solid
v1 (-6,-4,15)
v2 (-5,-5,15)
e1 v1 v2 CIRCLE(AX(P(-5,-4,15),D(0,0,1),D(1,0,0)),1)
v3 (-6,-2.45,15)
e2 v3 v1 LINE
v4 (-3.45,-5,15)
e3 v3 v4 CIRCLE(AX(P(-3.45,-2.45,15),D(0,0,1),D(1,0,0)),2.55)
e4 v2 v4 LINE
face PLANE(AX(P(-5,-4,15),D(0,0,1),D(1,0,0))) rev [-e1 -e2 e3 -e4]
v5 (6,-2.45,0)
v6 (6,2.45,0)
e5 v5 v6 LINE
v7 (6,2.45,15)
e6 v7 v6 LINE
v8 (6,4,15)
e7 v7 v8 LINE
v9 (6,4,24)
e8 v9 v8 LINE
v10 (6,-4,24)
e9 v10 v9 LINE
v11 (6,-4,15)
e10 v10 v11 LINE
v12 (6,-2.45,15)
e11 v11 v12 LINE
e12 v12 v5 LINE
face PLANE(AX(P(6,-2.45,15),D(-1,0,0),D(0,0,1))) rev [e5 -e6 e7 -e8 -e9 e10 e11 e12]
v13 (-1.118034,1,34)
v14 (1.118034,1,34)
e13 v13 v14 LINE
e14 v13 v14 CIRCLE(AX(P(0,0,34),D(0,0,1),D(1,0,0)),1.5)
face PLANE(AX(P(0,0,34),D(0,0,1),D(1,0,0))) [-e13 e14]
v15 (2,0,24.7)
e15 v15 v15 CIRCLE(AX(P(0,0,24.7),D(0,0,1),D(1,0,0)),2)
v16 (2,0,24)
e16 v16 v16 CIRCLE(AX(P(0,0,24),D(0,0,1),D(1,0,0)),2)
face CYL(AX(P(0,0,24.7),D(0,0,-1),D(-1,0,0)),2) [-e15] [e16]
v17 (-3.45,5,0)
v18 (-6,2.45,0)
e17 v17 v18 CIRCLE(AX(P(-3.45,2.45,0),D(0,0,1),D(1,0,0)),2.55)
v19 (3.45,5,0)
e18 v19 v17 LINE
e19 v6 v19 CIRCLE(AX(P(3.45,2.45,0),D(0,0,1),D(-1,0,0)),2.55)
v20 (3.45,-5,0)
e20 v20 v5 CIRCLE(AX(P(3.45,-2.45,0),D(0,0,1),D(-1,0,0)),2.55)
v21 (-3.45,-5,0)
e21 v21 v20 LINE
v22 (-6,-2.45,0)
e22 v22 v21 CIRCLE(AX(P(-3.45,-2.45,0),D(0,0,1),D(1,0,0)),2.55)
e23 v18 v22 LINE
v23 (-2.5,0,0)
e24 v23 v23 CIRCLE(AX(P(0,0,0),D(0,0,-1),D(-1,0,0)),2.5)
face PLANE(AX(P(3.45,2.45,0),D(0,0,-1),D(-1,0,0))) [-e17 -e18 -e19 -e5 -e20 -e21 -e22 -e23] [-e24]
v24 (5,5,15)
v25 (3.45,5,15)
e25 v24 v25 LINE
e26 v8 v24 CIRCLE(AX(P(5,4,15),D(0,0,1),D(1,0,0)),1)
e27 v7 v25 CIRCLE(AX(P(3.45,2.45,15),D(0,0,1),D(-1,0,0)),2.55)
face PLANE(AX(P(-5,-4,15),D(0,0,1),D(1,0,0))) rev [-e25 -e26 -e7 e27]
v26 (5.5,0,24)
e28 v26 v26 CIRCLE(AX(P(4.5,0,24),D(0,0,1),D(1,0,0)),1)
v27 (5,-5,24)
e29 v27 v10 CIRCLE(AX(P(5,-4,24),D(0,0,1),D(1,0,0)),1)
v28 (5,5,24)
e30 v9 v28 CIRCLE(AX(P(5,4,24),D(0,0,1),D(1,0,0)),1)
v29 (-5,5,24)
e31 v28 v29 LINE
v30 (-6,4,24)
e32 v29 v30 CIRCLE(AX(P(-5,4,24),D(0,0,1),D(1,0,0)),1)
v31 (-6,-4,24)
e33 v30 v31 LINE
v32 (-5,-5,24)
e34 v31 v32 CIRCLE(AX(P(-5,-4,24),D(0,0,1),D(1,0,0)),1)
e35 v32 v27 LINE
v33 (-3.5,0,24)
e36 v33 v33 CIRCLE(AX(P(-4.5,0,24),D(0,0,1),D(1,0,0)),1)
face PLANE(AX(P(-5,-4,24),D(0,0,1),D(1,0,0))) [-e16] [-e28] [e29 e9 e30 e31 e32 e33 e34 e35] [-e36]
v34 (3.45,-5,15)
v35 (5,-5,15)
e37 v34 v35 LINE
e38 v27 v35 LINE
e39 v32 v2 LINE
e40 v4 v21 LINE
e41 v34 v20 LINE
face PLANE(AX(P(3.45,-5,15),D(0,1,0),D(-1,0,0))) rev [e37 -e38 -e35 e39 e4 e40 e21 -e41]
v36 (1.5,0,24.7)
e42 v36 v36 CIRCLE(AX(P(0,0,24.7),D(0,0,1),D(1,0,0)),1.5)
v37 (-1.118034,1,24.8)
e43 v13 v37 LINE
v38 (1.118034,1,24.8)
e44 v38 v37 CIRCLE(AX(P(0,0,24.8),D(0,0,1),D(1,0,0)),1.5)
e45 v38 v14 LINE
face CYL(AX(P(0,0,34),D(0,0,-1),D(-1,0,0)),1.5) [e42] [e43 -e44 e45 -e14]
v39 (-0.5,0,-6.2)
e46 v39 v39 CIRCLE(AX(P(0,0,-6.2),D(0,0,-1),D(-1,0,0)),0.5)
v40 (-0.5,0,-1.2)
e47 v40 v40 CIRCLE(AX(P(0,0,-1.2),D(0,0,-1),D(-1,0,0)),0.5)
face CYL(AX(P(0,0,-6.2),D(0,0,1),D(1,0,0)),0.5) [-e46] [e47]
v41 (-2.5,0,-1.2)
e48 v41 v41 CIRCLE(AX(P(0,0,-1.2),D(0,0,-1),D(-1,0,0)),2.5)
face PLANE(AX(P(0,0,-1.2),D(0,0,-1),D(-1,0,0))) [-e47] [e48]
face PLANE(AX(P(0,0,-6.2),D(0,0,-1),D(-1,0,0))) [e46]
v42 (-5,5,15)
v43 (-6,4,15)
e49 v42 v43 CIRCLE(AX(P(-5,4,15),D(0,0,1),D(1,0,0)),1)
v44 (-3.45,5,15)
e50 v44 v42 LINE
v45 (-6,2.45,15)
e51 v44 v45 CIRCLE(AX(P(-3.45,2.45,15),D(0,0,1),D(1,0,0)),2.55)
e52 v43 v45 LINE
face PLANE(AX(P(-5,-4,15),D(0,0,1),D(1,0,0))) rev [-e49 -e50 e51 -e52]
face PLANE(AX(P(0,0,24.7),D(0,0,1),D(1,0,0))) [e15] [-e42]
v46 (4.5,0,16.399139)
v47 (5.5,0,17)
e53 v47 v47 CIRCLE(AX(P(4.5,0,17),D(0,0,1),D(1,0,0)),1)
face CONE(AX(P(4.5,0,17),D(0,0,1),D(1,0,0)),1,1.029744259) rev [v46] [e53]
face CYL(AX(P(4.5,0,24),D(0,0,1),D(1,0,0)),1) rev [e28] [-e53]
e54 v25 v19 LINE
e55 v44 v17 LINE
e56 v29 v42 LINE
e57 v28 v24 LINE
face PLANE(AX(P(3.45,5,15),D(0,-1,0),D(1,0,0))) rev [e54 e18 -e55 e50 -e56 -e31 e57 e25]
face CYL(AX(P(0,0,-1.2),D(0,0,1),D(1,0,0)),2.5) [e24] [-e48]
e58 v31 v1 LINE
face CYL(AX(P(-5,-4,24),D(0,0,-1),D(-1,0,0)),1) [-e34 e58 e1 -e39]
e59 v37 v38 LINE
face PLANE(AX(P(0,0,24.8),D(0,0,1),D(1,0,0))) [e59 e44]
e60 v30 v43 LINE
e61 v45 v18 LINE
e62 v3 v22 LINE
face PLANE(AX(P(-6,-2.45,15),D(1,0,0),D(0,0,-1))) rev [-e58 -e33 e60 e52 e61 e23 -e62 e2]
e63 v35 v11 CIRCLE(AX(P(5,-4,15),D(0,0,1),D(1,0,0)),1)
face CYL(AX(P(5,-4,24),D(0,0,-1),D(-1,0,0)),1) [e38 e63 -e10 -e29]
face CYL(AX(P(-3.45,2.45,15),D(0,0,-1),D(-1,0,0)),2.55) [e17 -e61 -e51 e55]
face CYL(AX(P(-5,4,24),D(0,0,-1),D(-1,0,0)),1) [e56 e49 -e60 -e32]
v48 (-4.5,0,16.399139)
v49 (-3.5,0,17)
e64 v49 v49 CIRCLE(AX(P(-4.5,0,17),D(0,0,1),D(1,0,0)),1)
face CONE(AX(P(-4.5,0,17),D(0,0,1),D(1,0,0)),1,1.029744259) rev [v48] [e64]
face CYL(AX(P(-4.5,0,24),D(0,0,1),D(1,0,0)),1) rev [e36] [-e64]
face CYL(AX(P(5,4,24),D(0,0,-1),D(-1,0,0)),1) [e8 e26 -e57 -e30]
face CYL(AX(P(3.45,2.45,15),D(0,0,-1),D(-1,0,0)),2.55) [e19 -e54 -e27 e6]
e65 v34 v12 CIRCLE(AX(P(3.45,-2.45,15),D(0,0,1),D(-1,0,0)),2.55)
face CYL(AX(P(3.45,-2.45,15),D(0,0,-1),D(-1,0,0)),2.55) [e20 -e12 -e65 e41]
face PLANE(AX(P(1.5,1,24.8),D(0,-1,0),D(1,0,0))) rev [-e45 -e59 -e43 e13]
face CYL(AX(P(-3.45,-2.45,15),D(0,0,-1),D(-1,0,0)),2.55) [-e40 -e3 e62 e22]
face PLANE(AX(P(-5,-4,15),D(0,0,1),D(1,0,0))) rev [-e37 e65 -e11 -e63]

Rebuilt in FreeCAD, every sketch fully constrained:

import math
import FreeCAD as App
import Part
import Sketcher
from FreeCAD import Vector
Q = App.Units.Quantity

doc = App.newDocument("Part")
body = doc.addObject("PartDesign::Body", "Body")

# Sketch on XY plane
sketch1 = doc.addObject("Sketcher::SketchObject", "Sketch")
body.addObject(sketch1)
sketch1.AttachmentSupport = (doc.XY_Plane, [""])
sketch1.MapMode = "FlatFace"
sketch1.addGeometry([
    Part.LineSegment(Vector(-3.5, -5, 0), Vector(3.5, -5, 0)),  # 0
    Part.ArcOfCircle(Part.Circle(Vector(3.5, -2.5, 0), Vector(0, 0, 1), 2.5), math.radians(-90), math.radians(0)),  # 1
    Part.LineSegment(Vector(6, -2.5, 0), Vector(6, 2.5, 0)),  # 2
    Part.ArcOfCircle(Part.Circle(Vector(3.5, 2.5, 0), Vector(0, 0, 1), 2.5), math.radians(0), math.radians(90)),  # 3
    Part.LineSegment(Vector(3.5, 5, 0), Vector(-3.5, 5, 0)),  # 4
    Part.ArcOfCircle(Part.Circle(Vector(-3.5, 2.5, 0), Vector(0, 0, 1), 2.5), math.radians(90), math.radians(180)),  # 5
    Part.LineSegment(Vector(-6, 2.5, 0), Vector(-6, -2.5, 0)),  # 6
    Part.ArcOfCircle(Part.Circle(Vector(-3.5, -2.5, 0), Vector(0, 0, 1), 2.5), math.radians(180), math.radians(270)),  # 7
], False)
sketch1.addConstraint([
    Sketcher.Constraint("Tangent", 0, 2, 1, 1),
    Sketcher.Constraint("Tangent", 1, 2, 2, 1),
    Sketcher.Constraint("Tangent", 2, 2, 3, 1),
    Sketcher.Constraint("Tangent", 3, 2, 4, 1),
    Sketcher.Constraint("Tangent", 4, 2, 5, 1),
    Sketcher.Constraint("Tangent", 5, 2, 6, 1),
    Sketcher.Constraint("Tangent", 6, 2, 7, 1),
    Sketcher.Constraint("Tangent", 7, 2, 0, 1),
    Sketcher.Constraint("Horizontal", 0),
    Sketcher.Constraint("Vertical", 2),
    Sketcher.Constraint("Horizontal", 4),
    Sketcher.Constraint("Vertical", 6),
    Sketcher.Constraint("Equal", 1, 3),
    Sketcher.Constraint("Equal", 3, 5),
    Sketcher.Constraint("Equal", 5, 7),
    Sketcher.Constraint("Symmetric", 1, 3, 5, 3, -1, 1),
    Sketcher.Constraint("Radius", 1, Q("2.55 mm")),
    Sketcher.Constraint("DistanceX", 0, 1, 0, 2, Q("6.9 mm")),
    Sketcher.Constraint("DistanceY", 2, 1, 2, 2, Q("4.9 mm")),
])
pad1 = doc.addObject("PartDesign::Pad", "Pad")
body.addObject(pad1)
pad1.Profile = sketch1
pad1.Length = 15

# Sketch on XY plane
sketch2 = doc.addObject("Sketcher::SketchObject", "Sketch001")
body.addObject(sketch2)
sketch2.AttachmentSupport = (doc.XY_Plane, [""])
sketch2.MapMode = "FlatFace"
sketch2.AttachmentOffset = App.Placement(Vector(0, 0, 15), App.Rotation())
sketch2.addGeometry([
    Part.LineSegment(Vector(-5, -5, 0), Vector(5, -5, 0)),  # 0
    Part.ArcOfCircle(Part.Circle(Vector(5, -4, 0), Vector(0, 0, 1), 1), math.radians(-90), math.radians(0)),  # 1
    Part.LineSegment(Vector(6, -4, 0), Vector(6, 4, 0)),  # 2
    Part.ArcOfCircle(Part.Circle(Vector(5, 4, 0), Vector(0, 0, 1), 1), math.radians(0), math.radians(90)),  # 3
    Part.LineSegment(Vector(5, 5, 0), Vector(-5, 5, 0)),  # 4
    Part.ArcOfCircle(Part.Circle(Vector(-5, 4, 0), Vector(0, 0, 1), 1), math.radians(90), math.radians(180)),  # 5
    Part.LineSegment(Vector(-6, 4, 0), Vector(-6, -4, 0)),  # 6
    Part.ArcOfCircle(Part.Circle(Vector(-5, -4, 0), Vector(0, 0, 1), 1), math.radians(-180), math.radians(-90)),  # 7
], False)
sketch2.addConstraint([
    Sketcher.Constraint("Tangent", 0, 2, 1, 1),
    Sketcher.Constraint("Tangent", 1, 2, 2, 1),
    Sketcher.Constraint("Tangent", 2, 2, 3, 1),
    Sketcher.Constraint("Tangent", 3, 2, 4, 1),
    Sketcher.Constraint("Tangent", 4, 2, 5, 1),
    Sketcher.Constraint("Tangent", 5, 2, 6, 1),
    Sketcher.Constraint("Tangent", 6, 2, 7, 1),
    Sketcher.Constraint("Tangent", 7, 2, 0, 1),
    Sketcher.Constraint("Horizontal", 0),
    Sketcher.Constraint("Vertical", 2),
    Sketcher.Constraint("Horizontal", 4),
    Sketcher.Constraint("Vertical", 6),
    Sketcher.Constraint("Equal", 1, 3),
    Sketcher.Constraint("Equal", 3, 5),
    Sketcher.Constraint("Equal", 5, 7),
    Sketcher.Constraint("Symmetric", 1, 3, 5, 3, -1, 1),
    Sketcher.Constraint("Radius", 1, Q("1 mm")),
    Sketcher.Constraint("DistanceX", 0, 1, 0, 2, Q("10 mm")),
    Sketcher.Constraint("DistanceY", 2, 1, 2, 2, Q("8 mm")),
])
pad2 = doc.addObject("PartDesign::Pad", "Pad001")
body.addObject(pad2)
pad2.Profile = sketch2
pad2.Length = 9

# Sketch on XY plane
sketch3 = doc.addObject("Sketcher::SketchObject", "Sketch002")
body.addObject(sketch3)
sketch3.AttachmentSupport = (doc.XY_Plane, [""])
sketch3.MapMode = "FlatFace"
sketch3.AttachmentOffset = App.Placement(Vector(0, 0, 24), App.Rotation())
sketch3.addGeometry(Part.Circle(Vector(0, 0, 0), Vector(0, 0, 1), 2), False)
sketch3.addConstraint([
    Sketcher.Constraint("Coincident", 0, 3, -1, 1),
    Sketcher.Constraint("Diameter", 0, Q("4 mm")),
])
pad3 = doc.addObject("PartDesign::Pad", "Pad002")
body.addObject(pad3)
pad3.Profile = sketch3
pad3.Length = 0.7

# Sketch on XY plane
sketch4 = doc.addObject("Sketcher::SketchObject", "Sketch003")
body.addObject(sketch4)
sketch4.AttachmentSupport = (doc.XY_Plane, [""])
sketch4.MapMode = "FlatFace"
sketch4.AttachmentOffset = App.Placement(Vector(0, 0, 24.7), App.Rotation())
sketch4.addGeometry(Part.Circle(Vector(0, 0, 0), Vector(0, 0, 1), 1.5), False)
sketch4.addConstraint([
    Sketcher.Constraint("Coincident", 0, 3, -1, 1),
    Sketcher.Constraint("Diameter", 0, Q("3 mm")),
])
pad4 = doc.addObject("PartDesign::Pad", "Pad003")
body.addObject(pad4)
pad4.Profile = sketch4
pad4.Length = 9.3

# Sketch on XY plane
sketch5 = doc.addObject("Sketcher::SketchObject", "Sketch004")
body.addObject(sketch5)
sketch5.AttachmentSupport = (doc.XY_Plane, [""])
sketch5.MapMode = "FlatFace"
sketch5.AttachmentOffset = App.Placement(Vector(0, 0, 34), App.Rotation())
sketch5.addGeometry([
    Part.LineSegment(Vector(-1.5, 2, 0), Vector(-1.5, 1, 0)),
    Part.LineSegment(Vector(-1.5, 1, 0), Vector(1.5, 1, 0)),
    Part.LineSegment(Vector(1.5, 1, 0), Vector(1.5, 2, 0)),
    Part.LineSegment(Vector(1.5, 2, 0), Vector(-1.5, 2, 0)),
], False)
sketch5.addConstraint([
    Sketcher.Constraint("Coincident", 0, 2, 1, 1),
    Sketcher.Constraint("Coincident", 1, 2, 2, 1),
    Sketcher.Constraint("Coincident", 2, 2, 3, 1),
    Sketcher.Constraint("Coincident", 3, 2, 0, 1),
    Sketcher.Constraint("Vertical", 0),
    Sketcher.Constraint("Horizontal", 1),
    Sketcher.Constraint("Vertical", 2),
    Sketcher.Constraint("Horizontal", 3),
    Sketcher.Constraint("DistanceX", 1, 1, 1, 2, Q("3 mm")),
    Sketcher.Constraint("DistanceY", 0, 2, 0, 1, Q("1 mm")),
    Sketcher.Constraint("DistanceY", -1, 1, 0, 2, Q("1 mm")),
    Sketcher.Constraint("DistanceX", 0, 2, -1, 1, Q("1.5 mm")),
])
pocket1 = doc.addObject("PartDesign::Pocket", "Pocket")
body.addObject(pocket1)
pocket1.Profile = sketch5
pocket1.Length = 9.2

# Sketch on XY plane
sketch6 = doc.addObject("Sketcher::SketchObject", "Sketch005")
body.addObject(sketch6)
sketch6.AttachmentSupport = (doc.XY_Plane, [""])
sketch6.MapMode = "FlatFace"
sketch6.addGeometry(Part.Circle(Vector(0, 0, 0), Vector(0, 0, 1), 2.5), False)
sketch6.addConstraint([
    Sketcher.Constraint("Coincident", 0, 3, -1, 1),
    Sketcher.Constraint("Diameter", 0, Q("5 mm")),
])
pad5 = doc.addObject("PartDesign::Pad", "Pad004")
body.addObject(pad5)
pad5.Profile = sketch6
pad5.Length = 1.2
pad5.Reversed = True

# Sketch on XY plane
sketch7 = doc.addObject("Sketcher::SketchObject", "Sketch006")
body.addObject(sketch7)
sketch7.AttachmentSupport = (doc.XY_Plane, [""])
sketch7.MapMode = "FlatFace"
sketch7.AttachmentOffset = App.Placement(Vector(0, 0, -1.2), App.Rotation())
sketch7.addGeometry(Part.Circle(Vector(0, 0, 0), Vector(0, 0, 1), 0.5), False)
sketch7.addConstraint([
    Sketcher.Constraint("Coincident", 0, 3, -1, 1),
    Sketcher.Constraint("Diameter", 0, Q("1 mm")),
])
pad6 = doc.addObject("PartDesign::Pad", "Pad005")
body.addObject(pad6)
pad6.Profile = sketch7
pad6.Length = 5
pad6.Reversed = True

# Sketch on XY plane
sketch8 = doc.addObject("Sketcher::SketchObject", "Sketch007")
body.addObject(sketch8)
sketch8.AttachmentSupport = (doc.XY_Plane, [""])
sketch8.MapMode = "FlatFace"
sketch8.AttachmentOffset = App.Placement(Vector(0, 0, 24), App.Rotation())
sketch8.addGeometry([
    Part.Circle(Vector(-4.5, 0, 0), Vector(0, 0, 1), 1),
    Part.Circle(Vector(4.5, 0, 0), Vector(0, 0, 1), 1),
], False)
sketch8.addConstraint([
    Sketcher.Constraint("Equal", 0, 1),
    Sketcher.Constraint("Symmetric", 0, 3, 1, 3, -1, 1),
    Sketcher.Constraint("PointOnObject", 0, 3, -1),
    Sketcher.Constraint("Diameter", 0, Q("2 mm")),
    Sketcher.Constraint("DistanceX", 0, 3, 1, 3, Q("9 mm")),
])
doc.recompute()
hole = doc.addObject("PartDesign::Hole", "Hole")
body.addObject(hole)
hole.Profile = sketch8
hole.ThreadType = "None"
hole.Diameter = 2
hole.DepthType = "Dimension"
hole.Depth = 7
hole.DrillPoint = "Angled"
hole.DrillPointAngle = 118

doc.recompute()
